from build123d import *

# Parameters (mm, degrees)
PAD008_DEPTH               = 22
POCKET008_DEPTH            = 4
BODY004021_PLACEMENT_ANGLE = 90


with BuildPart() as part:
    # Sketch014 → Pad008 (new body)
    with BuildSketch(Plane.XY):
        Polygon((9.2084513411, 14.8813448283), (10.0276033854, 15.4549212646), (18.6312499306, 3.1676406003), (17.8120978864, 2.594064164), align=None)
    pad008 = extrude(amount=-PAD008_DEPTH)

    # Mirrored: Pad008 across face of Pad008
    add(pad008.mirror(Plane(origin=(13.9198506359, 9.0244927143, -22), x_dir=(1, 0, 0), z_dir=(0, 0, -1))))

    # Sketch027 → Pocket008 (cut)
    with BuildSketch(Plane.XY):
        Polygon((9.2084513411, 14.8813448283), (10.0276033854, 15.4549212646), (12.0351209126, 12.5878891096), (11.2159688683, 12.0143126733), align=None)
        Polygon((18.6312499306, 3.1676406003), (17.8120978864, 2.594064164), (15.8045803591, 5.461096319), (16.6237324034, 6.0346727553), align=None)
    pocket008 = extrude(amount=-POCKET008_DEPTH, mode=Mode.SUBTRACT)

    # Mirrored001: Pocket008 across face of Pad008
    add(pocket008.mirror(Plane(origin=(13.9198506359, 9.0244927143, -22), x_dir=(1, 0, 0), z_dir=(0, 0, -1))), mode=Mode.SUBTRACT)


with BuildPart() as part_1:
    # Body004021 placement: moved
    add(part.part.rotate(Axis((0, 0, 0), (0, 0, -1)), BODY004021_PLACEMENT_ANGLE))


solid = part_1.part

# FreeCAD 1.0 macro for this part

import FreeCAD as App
import Part
import Sketcher
from FreeCAD import Vector
Q = App.Units.Quantity


def add_polygon(sketch, points):
    """Adds a closed chain of lines whose ends are joined by coincident constraints."""
    first, n = sketch.GeometryCount, len(points)
    for a, b in zip(points, points[1:] + points[:1]):
        sketch.addGeometry(Part.LineSegment(App.Vector(*a, 0), App.Vector(*b, 0)), False)
    for i in range(n):
        sketch.addConstraint(Sketcher.Constraint("Coincident", first + i, 2, first + (i + 1) % n, 1))

doc = App.newDocument("Part")
body = doc.addObject("PartDesign::Body", "Body")

# Sketch on XY plane
sketch1 = body.newObject("Sketcher::SketchObject", "Sketch")
sketch1.AttachmentSupport = (doc.getObject("XY_Plane"), [""])
sketch1.MapMode = "FlatFace"
add_polygon(sketch1, [(10, 15.5), (9.2, 14.9), (17.8, 2.6), (18.6, 3.2)])  # lines 0-3
sketch1.addConstraint([
    Sketcher.Constraint("Perpendicular", 0, 1),
    Sketcher.Constraint("Perpendicular", 1, 2),
    Sketcher.Constraint("Perpendicular", 2, 3),
    Sketcher.Constraint("Angle", 0, Q("-145 deg")),
    Sketcher.Constraint("Distance", 0, Q("1 mm")),
    Sketcher.Constraint("Distance", 1, Q("15 mm")),
    Sketcher.Constraint("DistanceX", -1, 1, 0, 2, Q("9.208451 mm")),
    Sketcher.Constraint("DistanceY", -1, 1, 2, 2, Q("3.167641 mm")),
])
pad1 = body.newObject("PartDesign::Pad", "Pad")
pad1.Profile = sketch1
pad1.Length = 22
pad1.Reversed = True
doc.recompute()

datumplane = body.newObject("PartDesign::Plane", "DatumPlane")
datumplane.AttachmentSupport = (doc.getObject("XY_Plane"), [""])
datumplane.MapMode = "FlatFace"
datumplane.AttachmentOffset = App.Placement(Vector(0, 0, -22), App.Rotation())
mirrored = body.newObject("PartDesign::Mirrored", "Mirrored")
mirrored.Originals = [pad1]
mirrored.MirrorPlane = (datumplane, [""])
body.Tip = mirrored

# Sketch on XY plane
sketch2 = body.newObject("Sketcher::SketchObject", "Sketch001")
sketch2.AttachmentSupport = (doc.getObject("XY_Plane"), [""])
sketch2.MapMode = "FlatFace"
add_polygon(sketch2, [(10, 15.5), (9.2, 14.9), (11.2, 12), (12, 12.6)])  # lines 0-3
add_polygon(sketch2, [(17.8, 2.6), (18.6, 3.2), (16.6, 6), (15.8, 5.5)])  # lines 4-7
sketch2.addConstraint([
    Sketcher.Constraint("Perpendicular", 0, 1),
    Sketcher.Constraint("Perpendicular", 1, 2),
    Sketcher.Constraint("Perpendicular", 2, 3),
    Sketcher.Constraint("Perpendicular", 3, 4),
    Sketcher.Constraint("Perpendicular", 4, 5),
    Sketcher.Constraint("Perpendicular", 5, 6),
    Sketcher.Constraint("Perpendicular", 6, 7),
    Sketcher.Constraint("Equal", 2, 4),
    Sketcher.Constraint("Equal", 3, 5),
    Sketcher.Constraint("Angle", 0, Q("-145 deg")),
    Sketcher.Constraint("Distance", 0, Q("1 mm")),
    Sketcher.Constraint("Distance", 1, Q("3.5 mm")),
    Sketcher.Constraint("DistanceX", 0, 2, 4, 2, Q("9.422799 mm")),
    Sketcher.Constraint("DistanceX", -1, 1, 0, 2, Q("9.208451 mm")),
    Sketcher.Constraint("DistanceY", -1, 1, 2, 2, Q("12.587889 mm")),
    Sketcher.Constraint("DistanceY", -1, 1, 4, 2, Q("3.167641 mm")),
])
pocket1 = body.newObject("PartDesign::Pocket", "Pocket")
pocket1.Profile = sketch2
pocket1.Length = 4
doc.recompute()

datumplane2 = body.newObject("PartDesign::Plane", "DatumPlane001")
datumplane2.AttachmentSupport = (doc.getObject("XY_Plane"), [""])
datumplane2.MapMode = "FlatFace"
datumplane2.AttachmentOffset = App.Placement(Vector(0, 0, -22), App.Rotation())
mirrored2 = body.newObject("PartDesign::Mirrored", "Mirrored001")
mirrored2.Originals = [pocket1]
mirrored2.MirrorPlane = (datumplane2, [""])
body.Tip = mirrored2
body2 = doc.addObject("PartDesign::Body", "Body001")
doc.recompute()

body.Placement = App.Placement(Vector(0, 0, 0), App.Rotation(Vector(0, 0, -1), 90))
boolean = body2.newObject("PartDesign::Boolean", "Boolean")
boolean.Type = "Fuse"
boolean.addObjects([body])

doc.recompute()
